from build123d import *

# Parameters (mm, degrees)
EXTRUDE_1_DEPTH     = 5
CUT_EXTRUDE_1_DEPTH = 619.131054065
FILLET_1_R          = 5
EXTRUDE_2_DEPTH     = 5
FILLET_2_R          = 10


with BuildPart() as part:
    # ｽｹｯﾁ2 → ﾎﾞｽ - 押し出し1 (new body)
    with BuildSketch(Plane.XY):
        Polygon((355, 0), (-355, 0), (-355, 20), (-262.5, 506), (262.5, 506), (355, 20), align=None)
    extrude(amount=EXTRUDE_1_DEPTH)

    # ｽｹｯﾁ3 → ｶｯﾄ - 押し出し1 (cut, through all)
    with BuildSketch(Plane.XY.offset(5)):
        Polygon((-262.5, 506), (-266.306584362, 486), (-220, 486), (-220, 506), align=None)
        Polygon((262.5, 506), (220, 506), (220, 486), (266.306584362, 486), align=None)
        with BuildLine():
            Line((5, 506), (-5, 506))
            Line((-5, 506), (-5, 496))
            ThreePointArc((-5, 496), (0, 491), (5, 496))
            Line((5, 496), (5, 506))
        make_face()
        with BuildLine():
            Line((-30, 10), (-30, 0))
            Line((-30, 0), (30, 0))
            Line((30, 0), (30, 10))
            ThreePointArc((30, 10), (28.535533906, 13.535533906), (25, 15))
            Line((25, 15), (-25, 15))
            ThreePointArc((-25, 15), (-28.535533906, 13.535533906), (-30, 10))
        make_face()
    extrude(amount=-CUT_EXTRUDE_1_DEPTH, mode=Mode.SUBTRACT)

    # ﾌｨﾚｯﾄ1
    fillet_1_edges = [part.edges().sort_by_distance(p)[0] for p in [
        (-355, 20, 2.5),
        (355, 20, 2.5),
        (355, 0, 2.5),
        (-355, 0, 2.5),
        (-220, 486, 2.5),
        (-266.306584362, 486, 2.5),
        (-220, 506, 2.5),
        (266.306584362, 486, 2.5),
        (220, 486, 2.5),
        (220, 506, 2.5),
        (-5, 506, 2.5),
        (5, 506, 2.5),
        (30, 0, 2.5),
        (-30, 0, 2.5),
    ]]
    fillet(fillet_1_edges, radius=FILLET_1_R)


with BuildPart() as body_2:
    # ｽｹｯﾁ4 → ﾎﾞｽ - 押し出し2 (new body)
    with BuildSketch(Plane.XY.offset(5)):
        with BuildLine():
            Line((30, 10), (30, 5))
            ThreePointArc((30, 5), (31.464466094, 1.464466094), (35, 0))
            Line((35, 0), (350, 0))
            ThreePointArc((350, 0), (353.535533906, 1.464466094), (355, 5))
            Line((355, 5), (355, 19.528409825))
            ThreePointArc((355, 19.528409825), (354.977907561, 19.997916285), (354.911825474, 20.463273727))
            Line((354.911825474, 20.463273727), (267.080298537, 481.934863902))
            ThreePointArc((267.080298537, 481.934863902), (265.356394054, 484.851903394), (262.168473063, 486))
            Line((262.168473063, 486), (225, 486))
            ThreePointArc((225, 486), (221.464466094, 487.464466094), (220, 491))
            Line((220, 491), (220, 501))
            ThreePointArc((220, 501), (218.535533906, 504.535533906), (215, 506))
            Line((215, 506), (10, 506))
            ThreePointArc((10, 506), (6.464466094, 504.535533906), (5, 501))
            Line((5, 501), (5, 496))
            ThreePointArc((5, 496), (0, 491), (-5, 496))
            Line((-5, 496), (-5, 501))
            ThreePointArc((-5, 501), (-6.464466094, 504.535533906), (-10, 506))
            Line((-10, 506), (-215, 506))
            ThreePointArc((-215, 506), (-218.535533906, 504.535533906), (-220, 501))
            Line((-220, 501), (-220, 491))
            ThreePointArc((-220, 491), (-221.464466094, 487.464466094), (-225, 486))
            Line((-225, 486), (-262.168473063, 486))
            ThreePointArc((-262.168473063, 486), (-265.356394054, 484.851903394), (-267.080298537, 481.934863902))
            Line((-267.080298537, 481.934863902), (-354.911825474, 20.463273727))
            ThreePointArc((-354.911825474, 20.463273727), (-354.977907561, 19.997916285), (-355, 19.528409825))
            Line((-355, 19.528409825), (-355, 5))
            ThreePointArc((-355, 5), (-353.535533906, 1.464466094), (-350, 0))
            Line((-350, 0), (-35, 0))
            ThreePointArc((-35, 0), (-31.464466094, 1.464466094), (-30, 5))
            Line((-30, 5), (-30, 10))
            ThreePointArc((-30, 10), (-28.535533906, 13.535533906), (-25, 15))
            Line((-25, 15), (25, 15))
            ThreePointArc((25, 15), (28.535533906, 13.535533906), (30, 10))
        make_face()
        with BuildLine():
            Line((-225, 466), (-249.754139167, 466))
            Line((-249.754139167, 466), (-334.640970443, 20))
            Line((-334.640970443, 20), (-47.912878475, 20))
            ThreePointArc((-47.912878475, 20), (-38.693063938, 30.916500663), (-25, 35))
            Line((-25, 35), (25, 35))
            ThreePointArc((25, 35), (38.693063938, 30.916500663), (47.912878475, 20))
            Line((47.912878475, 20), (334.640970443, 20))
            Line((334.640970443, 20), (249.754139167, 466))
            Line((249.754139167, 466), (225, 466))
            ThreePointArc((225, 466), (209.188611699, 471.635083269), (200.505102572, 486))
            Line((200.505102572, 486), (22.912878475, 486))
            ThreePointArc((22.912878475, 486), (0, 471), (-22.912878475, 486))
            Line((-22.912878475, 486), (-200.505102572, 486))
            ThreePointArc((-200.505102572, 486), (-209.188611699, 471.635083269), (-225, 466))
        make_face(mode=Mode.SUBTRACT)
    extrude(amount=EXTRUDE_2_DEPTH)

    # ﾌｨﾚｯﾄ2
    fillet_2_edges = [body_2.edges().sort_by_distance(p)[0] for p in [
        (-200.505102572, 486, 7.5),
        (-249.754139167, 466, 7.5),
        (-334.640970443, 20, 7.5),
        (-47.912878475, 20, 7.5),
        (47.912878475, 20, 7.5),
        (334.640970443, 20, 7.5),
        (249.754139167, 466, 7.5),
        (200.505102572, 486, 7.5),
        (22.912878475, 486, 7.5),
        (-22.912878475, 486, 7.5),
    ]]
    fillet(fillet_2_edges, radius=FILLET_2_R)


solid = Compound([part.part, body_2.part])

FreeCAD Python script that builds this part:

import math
import FreeCAD as App
import Part
import Sketcher


def edges_at(feature, points):
    """Names of the edges that pass closest to the given points."""
    edges = feature.Shape.Edges
    near = lambda p: min(range(len(edges)), key=lambda i: edges[i].distToShape(Part.Vertex(*p))[0])
    return sorted({f"Edge{near(p) + 1}" for p in points})


def add_polygon(sketch, points):
    """Adds a closed chain of lines whose ends are joined by coincident constraints."""
    first, n = sketch.GeometryCount, len(points)
    for a, b in zip(points, points[1:] + points[:1]):
        sketch.addGeometry(Part.LineSegment(App.Vector(*a, 0), App.Vector(*b, 0)), False)
    for i in range(n):
        sketch.addConstraint(Sketcher.Constraint("Coincident", first + i, 2, first + (i + 1) % n, 1))

doc = App.newDocument("Part")
body = doc.addObject("PartDesign::Body", "Body")

# Sketch on XY plane
sketch1 = doc.addObject("Sketcher::SketchObject", "Sketch")
body.addObject(sketch1)
sketch1.AttachmentSupport = (doc.XY_Plane, [""])
sketch1.MapMode = "FlatFace"
add_polygon(sketch1, [(-355, 0), (355, 0), (355, 20), (262, 506), (-262, 506), (-355, 20)])  # lines 0-5
sketch1.addConstraint([
    Sketcher.Constraint("Horizontal", 0),
    Sketcher.Constraint("Vertical", 1),
    Sketcher.Constraint("Horizontal", 3),
    Sketcher.Constraint("Vertical", 5),
    Sketcher.Constraint("Symmetric", 0, 2, 5, 2, -1, 1),
    Sketcher.Constraint("Horizontal", 1, 2, 4, 2),
    Sketcher.Constraint("Equal", 2, 4),
    Sketcher.Constraint("DistanceX", 0, 1, 0, 2, 710.0),
    Sketcher.Constraint("DistanceX", 3, 2, 3, 1, 525.0),
    Sketcher.Constraint("DistanceY", 1, 1, 1, 2, 20.0),
    Sketcher.Constraint("DistanceY", -1, 1, 2, 2, 506.0),
])
pad1 = doc.addObject("PartDesign::Pad", "Pad")
body.addObject(pad1)
pad1.Profile = sketch1
pad1.Length = 5

# Sketch on XY plane
sketch2 = doc.addObject("Sketcher::SketchObject", "Sketch001")
body.addObject(sketch2)
sketch2.AttachmentSupport = (doc.XY_Plane, [""])
sketch2.MapMode = "FlatFace"
sketch2.AttachmentOffset = App.Placement(App.Vector(0, 0, 5), App.Rotation())
add_polygon(sketch2, [(-262, 506), (-266, 486), (-220, 486), (-220, 506)])  # lines 0-3
add_polygon(sketch2, [(262, 506), (220, 506), (220, 486), (266, 486)])  # lines 4-7
sketch2.addGeometry(Part.LineSegment(App.Vector(5, 506, 0), App.Vector(-5, 506, 0)), False)  # 8
sketch2.addGeometry(Part.LineSegment(App.Vector(-5, 506, 0), App.Vector(-5, 496, 0)), False)  # 9
sketch2.addGeometry(Part.ArcOfCircle(Part.Circle(App.Vector(0, 496, 0), App.Vector(0, 0, 1), 5), math.radians(180), math.radians(360)), False)  # 10
sketch2.addGeometry(Part.LineSegment(App.Vector(5, 496, 0), App.Vector(5, 506, 0)), False)  # 11
sketch2.addGeometry(Part.LineSegment(App.Vector(-30, 10, 0), App.Vector(-30, 0, 0)), False)  # 12
sketch2.addGeometry(Part.LineSegment(App.Vector(-30, 0, 0), App.Vector(30, 0, 0)), False)  # 13
sketch2.addGeometry(Part.LineSegment(App.Vector(30, 0, 0), App.Vector(30, 10, 0)), False)  # 14
sketch2.addGeometry(Part.ArcOfCircle(Part.Circle(App.Vector(25, 10, 0), App.Vector(0, 0, 1), 5), math.radians(0), math.radians(90)), False)  # 15
sketch2.addGeometry(Part.LineSegment(App.Vector(25, 15, 0), App.Vector(-25, 15, 0)), False)  # 16
sketch2.addGeometry(Part.ArcOfCircle(Part.Circle(App.Vector(-25, 10, 0), App.Vector(0, 0, 1), 5), math.radians(90), math.radians(180)), False)  # 17
sketch2.addConstraint([
    Sketcher.Constraint("Coincident", 8, 2, 9, 1),
    Sketcher.Constraint("Tangent", 9, 2, 10, 1),
    Sketcher.Constraint("Tangent", 10, 2, 11, 1),
    Sketcher.Constraint("Coincident", 11, 2, 8, 1),
    Sketcher.Constraint("Coincident", 12, 2, 13, 1),
    Sketcher.Constraint("Coincident", 13, 2, 14, 1),
    Sketcher.Constraint("Tangent", 14, 2, 15, 1),
    Sketcher.Constraint("Tangent", 15, 2, 16, 1),
    Sketcher.Constraint("Tangent", 16, 2, 17, 1),
    Sketcher.Constraint("Tangent", 17, 2, 12, 1),
    Sketcher.Constraint("Horizontal", 1),
    Sketcher.Constraint("Vertical", 2),
    Sketcher.Constraint("Horizontal", 3),
    Sketcher.Constraint("Horizontal", 4),
    Sketcher.Constraint("Vertical", 5),
    Sketcher.Constraint("Horizontal", 6),
    Sketcher.Constraint("Horizontal", 8),
    Sketcher.Constraint("Vertical", 9),
    Sketcher.Constraint("Vertical", 11),
    Sketcher.Constraint("Vertical", 12),
    Sketcher.Constraint("Horizontal", 13),
    Sketcher.Constraint("Vertical", 14),
    Sketcher.Constraint("Horizontal", 16),
    Sketcher.Constraint("Equal", 10, 15),
    Sketcher.Constraint("Equal", 15, 17),
    Sketcher.Constraint("Symmetric", 12, 2, 13, 2, -1, 1),
    Sketcher.Constraint("Symmetric", 2, 2, 4, 2, -2),
    Sketcher.Constraint("Symmetric", 0, 2, 6, 2, -2),
    Sketcher.Constraint("PointOnObject", 10, 3, -2),
    Sketcher.Constraint("Horizontal", 7, 2, 8, 2),
    Sketcher.Constraint("Equal", 3, 4),
    Sketcher.Constraint("Equal", 8, 9),
    Sketcher.Constraint("Equal", 11, 12),
    Sketcher.Constraint("Radius", 10, 5.0),
    Sketcher.Constraint("DistanceX", 13, 1, 13, 2, 60.0),
    Sketcher.Constraint("DistanceY", 2, 1, 2, 2, 20.0),
    Sketcher.Constraint("DistanceX", 3, 2, 3, 1, 42.5),
    Sketcher.Constraint("DistanceY", -1, 1, 10, 3, 496.0),
    Sketcher.Constraint("DistanceX", 1, 2, -1, 1, 220.0),
    Sketcher.Constraint("Distance", 0, 20.35903),
])
pocket1 = doc.addObject("PartDesign::Pocket", "Pocket")
body.addObject(pocket1)
pocket1.Profile = sketch2
pocket1.Type = "ThroughAll"
doc.recompute()

fillet = doc.addObject("PartDesign::Fillet", "Fillet")
body.addObject(fillet)
fillet.Base = (pocket1, edges_at(pocket1, [
    (-355, 20, 2.5),
    (355, 20, 2.5),
    (355, 0, 2.5),
    (-355, 0, 2.5),
    (-220, 486, 2.5),
    (-266.307, 486, 2.5),
    (-220, 506, 2.5),
    (266.307, 486, 2.5),
    (220, 486, 2.5),
    (220, 506, 2.5),
    (-5, 506, 2.5),
    (5, 506, 2.5),
    (30, 0, 2.5),
    (-30, 0, 2.5),
]))
fillet.Radius = 5
body2 = doc.addObject("PartDesign::Body", "Body001")

# Sketch on XY plane
sketch3 = doc.addObject("Sketcher::SketchObject", "Sketch002")
body2.addObject(sketch3)
sketch3.AttachmentSupport = (doc.getObject("XY_Plane001"), [""])
sketch3.MapMode = "FlatFace"
sketch3.AttachmentOffset = App.Placement(App.Vector(0, 0, 5), App.Rotation())
sketch3.addGeometry([
    Part.LineSegment(App.Vector(30, 10, 0), App.Vector(30, 5, 0)),  # 0
    Part.ArcOfCircle(Part.Circle(App.Vector(35, 5, 0), App.Vector(0, 0, 1), 5), math.radians(180), math.radians(270)),  # 1
    Part.LineSegment(App.Vector(35, 0, 0), App.Vector(350, 0, 0)),  # 2
    Part.ArcOfCircle(Part.Circle(App.Vector(350, 5, 0), App.Vector(0, 0, 1), 5), math.radians(-90), math.radians(0)),  # 3
    Part.LineSegment(App.Vector(355, 5, 0), App.Vector(355, 19.5, 0)),  # 4
    Part.ArcOfCircle(Part.Circle(App.Vector(350, 19.5, 0), App.Vector(0, 0, 1), 5), math.radians(0), math.radians(10.78)),  # 5
    Part.LineSegment(App.Vector(354.9, 20.5, 0), App.Vector(267.1, 481.9, 0)),  # 6
    Part.ArcOfCircle(Part.Circle(App.Vector(262.2, 481, 0), App.Vector(0, 0, 1), 5), math.radians(11), math.radians(90)),  # 7
    Part.LineSegment(App.Vector(262.2, 486, 0), App.Vector(225, 486, 0)),  # 8
    Part.ArcOfCircle(Part.Circle(App.Vector(225, 491, 0), App.Vector(0, 0, 1), 5), math.radians(180), math.radians(270)),  # 9
    Part.LineSegment(App.Vector(220, 491, 0), App.Vector(220, 501, 0)),  # 10
    Part.ArcOfCircle(Part.Circle(App.Vector(215, 501, 0), App.Vector(0, 0, 1), 5), math.radians(0), math.radians(90)),  # 11
    Part.LineSegment(App.Vector(215, 506, 0), App.Vector(10, 506, 0)),  # 12
    Part.ArcOfCircle(Part.Circle(App.Vector(10, 501, 0), App.Vector(0, 0, 1), 5), math.radians(90), math.radians(180)),  # 13
    Part.LineSegment(App.Vector(5, 501, 0), App.Vector(5, 496, 0)),  # 14
    Part.ArcOfCircle(Part.Circle(App.Vector(0, 496, 0), App.Vector(0, 0, 1), 5), math.radians(180), math.radians(360)),  # 15
    Part.LineSegment(App.Vector(-5, 496, 0), App.Vector(-5, 501, 0)),  # 16
    Part.ArcOfCircle(Part.Circle(App.Vector(-10, 501, 0), App.Vector(0, 0, 1), 5), math.radians(0), math.radians(90)),  # 17
    Part.LineSegment(App.Vector(-10, 506, 0), App.Vector(-215, 506, 0)),  # 18
    Part.ArcOfCircle(Part.Circle(App.Vector(-215, 501, 0), App.Vector(0, 0, 1), 5), math.radians(90), math.radians(180)),  # 19
    Part.LineSegment(App.Vector(-220, 501, 0), App.Vector(-220, 491, 0)),  # 20
    Part.ArcOfCircle(Part.Circle(App.Vector(-225, 491, 0), App.Vector(0, 0, 1), 5), math.radians(-90), math.radians(0)),  # 21
    Part.LineSegment(App.Vector(-225, 486, 0), App.Vector(-262.2, 486, 0)),  # 22
    Part.ArcOfCircle(Part.Circle(App.Vector(-262.2, 481, 0), App.Vector(0, 0, 1), 5), math.radians(90), math.radians(169)),  # 23
    Part.LineSegment(App.Vector(-267.1, 481.9, 0), App.Vector(-354.9, 20.5, 0)),  # 24
    Part.ArcOfCircle(Part.Circle(App.Vector(-350, 19.5, 0), App.Vector(0, 0, 1), 5), math.radians(169.22), math.radians(180)),  # 25
    Part.LineSegment(App.Vector(-355, 19.5, 0), App.Vector(-355, 5, 0)),  # 26
    Part.ArcOfCircle(Part.Circle(App.Vector(-350, 5, 0), App.Vector(0, 0, 1), 5), math.radians(180), math.radians(270)),  # 27
    Part.LineSegment(App.Vector(-350, 0, 0), App.Vector(-35, 0, 0)),  # 28
    Part.ArcOfCircle(Part.Circle(App.Vector(-35, 5, 0), App.Vector(0, 0, 1), 5), math.radians(-90), math.radians(0)),  # 29
    Part.LineSegment(App.Vector(-30, 5, 0), App.Vector(-30, 10, 0)),  # 30
    Part.ArcOfCircle(Part.Circle(App.Vector(-25, 10, 0), App.Vector(0, 0, 1), 5), math.radians(90), math.radians(180)),  # 31
    Part.LineSegment(App.Vector(-25, 15, 0), App.Vector(25, 15, 0)),  # 32
    Part.ArcOfCircle(Part.Circle(App.Vector(25, 10, 0), App.Vector(0, 0, 1), 5), math.radians(0), math.radians(90)),  # 33
    Part.LineSegment(App.Vector(-249.8, 466, 0), App.Vector(-225, 466, 0)),  # 34
    Part.ArcOfCircle(Part.Circle(App.Vector(-225, 491, 0), App.Vector(0, 0, 1), 25), math.radians(-90), math.radians(-12)),  # 35
    Part.LineSegment(App.Vector(-200.5, 486, 0), App.Vector(-22.9, 486, 0)),  # 36
    Part.ArcOfCircle(Part.Circle(App.Vector(0, 496, 0), App.Vector(0, 0, 1), 25), math.radians(-156), math.radians(-24)),  # 37
    Part.LineSegment(App.Vector(22.9, 486, 0), App.Vector(200.5, 486, 0)),  # 38
    Part.ArcOfCircle(Part.Circle(App.Vector(225, 491, 0), App.Vector(0, 0, 1), 25), math.radians(-168), math.radians(-90)),  # 39
    Part.LineSegment(App.Vector(225, 466, 0), App.Vector(249.8, 466, 0)),  # 40
    Part.LineSegment(App.Vector(249.8, 466, 0), App.Vector(334.6, 20, 0)),  # 41
    Part.LineSegment(App.Vector(334.6, 20, 0), App.Vector(47.9, 20, 0)),  # 42
    Part.ArcOfCircle(Part.Circle(App.Vector(25, 10, 0), App.Vector(0, 0, 1), 25), math.radians(24), math.radians(90)),  # 43
    Part.LineSegment(App.Vector(25, 35, 0), App.Vector(-25, 35, 0)),  # 44
    Part.ArcOfCircle(Part.Circle(App.Vector(-25, 10, 0), App.Vector(0, 0, 1), 25), math.radians(90), math.radians(156)),  # 45
    Part.LineSegment(App.Vector(-47.9, 20, 0), App.Vector(-334.6, 20, 0)),  # 46
    Part.LineSegment(App.Vector(-334.6, 20, 0), App.Vector(-249.8, 466, 0)),  # 47
], False)
sketch3.addConstraint([
    Sketcher.Constraint("Tangent", 0, 2, 1, 1),
    Sketcher.Constraint("Tangent", 1, 2, 2, 1),
    Sketcher.Constraint("Tangent", 2, 2, 3, 1),
    Sketcher.Constraint("Tangent", 3, 2, 4, 1),
    Sketcher.Constraint("Tangent", 4, 2, 5, 1),
    Sketcher.Constraint("Tangent", 5, 2, 6, 1),
    Sketcher.Constraint("Tangent", 6, 2, 7, 1),
    Sketcher.Constraint("Tangent", 7, 2, 8, 1),
    Sketcher.Constraint("Tangent", 8, 2, 9, 2),
    Sketcher.Constraint("Tangent", 9, 1, 10, 1),
    Sketcher.Constraint("Tangent", 10, 2, 11, 1),
    Sketcher.Constraint("Tangent", 11, 2, 12, 1),
    Sketcher.Constraint("Tangent", 12, 2, 13, 1),
    Sketcher.Constraint("Tangent", 13, 2, 14, 1),
    Sketcher.Constraint("Tangent", 14, 2, 15, 2),
    Sketcher.Constraint("Tangent", 15, 1, 16, 1),
    Sketcher.Constraint("Tangent", 16, 2, 17, 1),
    Sketcher.Constraint("Tangent", 17, 2, 18, 1),
    Sketcher.Constraint("Tangent", 18, 2, 19, 1),
    Sketcher.Constraint("Tangent", 19, 2, 20, 1),
    Sketcher.Constraint("Tangent", 20, 2, 21, 2),
    Sketcher.Constraint("Tangent", 21, 1, 22, 1),
    Sketcher.Constraint("Tangent", 22, 2, 23, 1),
    Sketcher.Constraint("Tangent", 23, 2, 24, 1),
    Sketcher.Constraint("Tangent", 24, 2, 25, 1),
    Sketcher.Constraint("Tangent", 25, 2, 26, 1),
    Sketcher.Constraint("Tangent", 26, 2, 27, 1),
    Sketcher.Constraint("Tangent", 27, 2, 28, 1),
    Sketcher.Constraint("Tangent", 28, 2, 29, 1),
    Sketcher.Constraint("Tangent", 29, 2, 30, 1),
    Sketcher.Constraint("Tangent", 30, 2, 31, 2),
    Sketcher.Constraint("Tangent", 31, 1, 32, 1),
    Sketcher.Constraint("Tangent", 32, 2, 33, 2),
    Sketcher.Constraint("Tangent", 33, 1, 0, 1),
    Sketcher.Constraint("Tangent", 34, 2, 35, 1),
    Sketcher.Constraint("Coincident", 35, 2, 36, 1),
    Sketcher.Constraint("Coincident", 36, 2, 37, 1),
    Sketcher.Constraint("Coincident", 37, 2, 38, 1),
    Sketcher.Constraint("Coincident", 38, 2, 39, 1),
    Sketcher.Constraint("Tangent", 39, 2, 40, 1),
    Sketcher.Constraint("Coincident", 40, 2, 41, 1),
    Sketcher.Constraint("Coincident", 41, 2, 42, 1),
    Sketcher.Constraint("Coincident", 42, 2, 43, 1),
    Sketcher.Constraint("Tangent", 43, 2, 44, 1),
    Sketcher.Constraint("Tangent", 44, 2, 45, 1),
    Sketcher.Constraint("Coincident", 45, 2, 46, 1),
    Sketcher.Constraint("Coincident", 46, 2, 47, 1),
    Sketcher.Constraint("Coincident", 47, 2, 34, 1),
    Sketcher.Constraint("Vertical", 0),
    Sketcher.Constraint("Horizontal", 2),
    Sketcher.Constraint("Vertical", 4),
    Sketcher.Constraint("Horizontal", 8),
    Sketcher.Constraint("Vertical", 10),
    Sketcher.Constraint("Horizontal", 12),
    Sketcher.Constraint("Vertical", 14),
    Sketcher.Constraint("Vertical", 16),
    Sketcher.Constraint("Horizontal", 18),
    Sketcher.Constraint("Vertical", 20),
    Sketcher.Constraint("Horizontal", 22),
    Sketcher.Constraint("Vertical", 26),
    Sketcher.Constraint("Horizontal", 28),
    Sketcher.Constraint("Vertical", 30),
    Sketcher.Constraint("Horizontal", 32),
    Sketcher.Constraint("Horizontal", 34),
    Sketcher.Constraint("Horizontal", 36),
    Sketcher.Constraint("Horizontal", 38),
    Sketcher.Constraint("Horizontal", 40),
    Sketcher.Constraint("Horizontal", 42),
    Sketcher.Constraint("Horizontal", 44),
    Sketcher.Constraint("Horizontal", 46),
    Sketcher.Constraint("Coincident", 35, 3, 21, 3),
    Sketcher.Constraint("Coincident", 37, 3, 15, 3),
    Sketcher.Constraint("Coincident", 39, 3, 9, 3),
    Sketcher.Constraint("Coincident", 43, 3, 33, 3),
    Sketcher.Constraint("Coincident", 45, 3, 31, 3),
    Sketcher.Constraint("Equal", 1, 3),
    Sketcher.Constraint("Equal", 3, 5),
    Sketcher.Constraint("Equal", 5, 7),
    Sketcher.Constraint("Equal", 7, 9),
    Sketcher.Constraint("Equal", 9, 11),
    Sketcher.Constraint("Equal", 11, 13),
    Sketcher.Constraint("Equal", 13, 15),
    Sketcher.Constraint("Equal", 15, 17),
    Sketcher.Constraint("Equal", 17, 19),
    Sketcher.Constraint("Equal", 19, 21),
    Sketcher.Constraint("Equal", 21, 23),
    Sketcher.Constraint("Equal", 23, 25),
    Sketcher.Constraint("Equal", 25, 27),
    Sketcher.Constraint("Equal", 27, 29),
    Sketcher.Constraint("Equal", 29, 31),
    Sketcher.Constraint("Equal", 31, 33),
    Sketcher.Constraint("Equal", 35, 37),
    Sketcher.Constraint("Equal", 37, 39),
    Sketcher.Constraint("Equal", 39, 43),
    Sketcher.Constraint("Symmetric", 2, 2, 27, 2, -1, 1),
    Sketcher.Constraint("Symmetric", 13, 3, 17, 3, -2),
    Sketcher.Constraint("Symmetric", 9, 3, 21, 3, -2),
    Sketcher.Constraint("Symmetric", 1, 3, 29, 3, -2),
    Sketcher.Constraint("Symmetric", 41, 2, 46, 2, -2),
    Sketcher.Constraint("Parallel", 6, 41),
    Sketcher.Constraint("Parallel", 24, 47),
    Sketcher.Constraint("Horizontal", 5, 3, 25, 3),
    Sketcher.Constraint("Horizontal", 22, 2, 35, 2),
    Sketcher.Constraint("Horizontal", 36, 2, 37, 2),
    Sketcher.Constraint("Equal", 8, 22),
    Sketcher.Constraint("Equal", 0, 14),
    Sketcher.Constraint("Radius", 1, 5.0),
    Sketcher.Constraint("Radius", 35, 25.0),
    Sketcher.Constraint("DistanceX", 2, 1, 2, 2, 315.0),
    Sketcher.Constraint("DistanceX", 12, 2, 12, 1, 205.0),
    Sketcher.Constraint("DistanceX", 32, 1, 32, 2, 50.0),
    Sketcher.Constraint("DistanceY", 0, 2, 0, 1, 5.0),
    Sketcher.Constraint("DistanceY", 10, 1, 10, 2, 10.0),
    Sketcher.Constraint("DistanceY", -1, 1, 7, 3, 481.0),
    Sketcher.Constraint("DistanceY", -1, 1, 41, 2, 20.0),
    Sketcher.Constraint("DistanceX", 34, 1, 34, 2, 24.754139),
    Sketcher.Constraint("DistanceX", 42, 2, 42, 1, 286.728092),
    Sketcher.Constraint("DistanceY", 4, 1, 4, 2, 14.52841),
])
pad2 = doc.addObject("PartDesign::Pad", "Pad001")
body2.addObject(pad2)
pad2.Profile = sketch3
pad2.Length = 5
doc.recompute()

fillet2 = doc.addObject("PartDesign::Fillet", "Fillet001")
body2.addObject(fillet2)
fillet2.Base = (pad2, edges_at(pad2, [
    (-200.505, 486, 7.5),
    (-249.754, 466, 7.5),
    (-334.641, 20, 7.5),
    (-47.913, 20, 7.5),
    (47.913, 20, 7.5),
    (334.641, 20, 7.5),
    (249.754, 466, 7.5),
    (200.505, 486, 7.5),
    (22.913, 486, 7.5),
    (-22.913, 486, 7.5),
]))
fillet2.Radius = 10

doc.recompute()
